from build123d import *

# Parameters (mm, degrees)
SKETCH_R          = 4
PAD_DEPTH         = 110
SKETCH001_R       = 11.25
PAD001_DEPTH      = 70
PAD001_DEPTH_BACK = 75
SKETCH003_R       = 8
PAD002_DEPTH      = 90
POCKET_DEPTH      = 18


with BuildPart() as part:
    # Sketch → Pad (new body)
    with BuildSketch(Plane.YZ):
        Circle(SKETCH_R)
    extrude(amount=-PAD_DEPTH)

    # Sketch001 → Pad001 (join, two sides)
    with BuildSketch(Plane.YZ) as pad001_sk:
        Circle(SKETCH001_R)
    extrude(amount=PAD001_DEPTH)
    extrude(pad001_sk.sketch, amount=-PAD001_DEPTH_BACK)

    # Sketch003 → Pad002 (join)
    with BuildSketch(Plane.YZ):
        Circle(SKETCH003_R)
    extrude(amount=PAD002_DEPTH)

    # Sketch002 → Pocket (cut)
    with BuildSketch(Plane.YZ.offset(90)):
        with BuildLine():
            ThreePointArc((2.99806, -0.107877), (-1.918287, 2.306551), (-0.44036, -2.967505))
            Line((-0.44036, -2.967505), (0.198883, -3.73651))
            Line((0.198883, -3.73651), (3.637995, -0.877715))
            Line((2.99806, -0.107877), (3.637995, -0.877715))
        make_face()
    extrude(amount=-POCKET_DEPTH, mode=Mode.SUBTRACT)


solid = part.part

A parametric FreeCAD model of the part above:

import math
import FreeCAD as App
import Part
import Sketcher

V = App.Vector
Q = App.Units.Quantity

doc = App.newDocument("Part")
body = doc.addObject("PartDesign::Body", "Body")

# Sketch on YZ plane
sketch1 = doc.addObject("Sketcher::SketchObject", "Sketch")
body.addObject(sketch1)
sketch1.AttachmentSupport = (doc.YZ_Plane, [""])
sketch1.MapMode = "FlatFace"
sketch1.addGeometry(Part.Circle(V(0, 0, 0), V(0, 0, 1), 4), False)
sketch1.addConstraint(Sketcher.Constraint("Coincident", 0, 3, -1, 1))
sketch1.addConstraint(Sketcher.Constraint("Diameter", 0, Q("8 mm")))
pad1 = doc.addObject("PartDesign::Pad", "Pad")
body.addObject(pad1)
pad1.Profile = sketch1
pad1.Length = 110
pad1.Reversed = True

# Sketch on YZ plane
sketch2 = doc.addObject("Sketcher::SketchObject", "Sketch001")
body.addObject(sketch2)
sketch2.AttachmentSupport = (doc.YZ_Plane, [""])
sketch2.MapMode = "FlatFace"
sketch2.addGeometry(Part.Circle(V(0, 0, 0), V(0, 0, 1), 11), False)
sketch2.addConstraint(Sketcher.Constraint("Coincident", 0, 3, -1, 1))
sketch2.addConstraint(Sketcher.Constraint("Diameter", 0, Q("22.5 mm")))
pad2 = doc.addObject("PartDesign::Pad", "Pad001")
body.addObject(pad2)
pad2.Profile = sketch2
pad2.Type = "TwoLengths"
pad2.Length = 70
pad2.Length2 = 75

# Sketch on YZ plane
sketch3 = doc.addObject("Sketcher::SketchObject", "Sketch002")
body.addObject(sketch3)
sketch3.AttachmentSupport = (doc.YZ_Plane, [""])
sketch3.MapMode = "FlatFace"
sketch3.addGeometry(Part.Circle(V(0, 0, 0), V(0, 0, 1), 8), False)
sketch3.addConstraint(Sketcher.Constraint("Coincident", 0, 3, -1, 1))
sketch3.addConstraint(Sketcher.Constraint("Diameter", 0, Q("16 mm")))
pad3 = doc.addObject("PartDesign::Pad", "Pad002")
body.addObject(pad3)
pad3.Profile = sketch3
pad3.Length = 90

# Sketch on YZ plane
sketch4 = doc.addObject("Sketcher::SketchObject", "Sketch003")
body.addObject(sketch4)
sketch4.AttachmentSupport = (doc.YZ_Plane, [""])
sketch4.MapMode = "FlatFace"
sketch4.AttachmentOffset = App.Placement(V(0, 0, 90), App.Rotation())
sketch4.addGeometry(Part.ArcOfCircle(Part.Circle(V(0, 0, 0), V(0, 0, 1), 3), math.radians(-2), math.radians(262)), False)
sketch4.addGeometry(Part.LineSegment(V(-0.4, -3, 0), V(0.2, -3.7, 0)), False)
sketch4.addGeometry(Part.LineSegment(V(0.2, -3.7, 0), V(3.6, -0.9, 0)), False)
sketch4.addGeometry(Part.LineSegment(V(3.6, -0.9, 0), V(3, -0.1, 0)), False)
sketch4.addConstraint(Sketcher.Constraint("Coincident", 0, 2, 1, 1))
sketch4.addConstraint(Sketcher.Constraint("Coincident", 1, 2, 2, 1))
sketch4.addConstraint(Sketcher.Constraint("Coincident", 2, 2, 3, 1))
sketch4.addConstraint(Sketcher.Constraint("Coincident", 3, 2, 0, 1))
sketch4.addConstraint(Sketcher.Constraint("Coincident", 0, 3, -1, 1))
sketch4.addConstraint(Sketcher.Constraint("Perpendicular", 1, 2))
sketch4.addConstraint(Sketcher.Constraint("Perpendicular", 2, 3))
sketch4.addConstraint(Sketcher.Constraint("Radius", 0, Q("3 mm")))
sketch4.addConstraint(Sketcher.Constraint("Distance", 1, Q("1 mm")))
sketch4.addConstraint(Sketcher.Constraint("Distance", 2, Q("4.472158 mm")))
sketch4.addConstraint(Sketcher.Constraint("DistanceX", 0, 2, -1, 1, Q("0.44036 mm")))
sketch4.addConstraint(Sketcher.Constraint("DistanceY", 1, 2, -1, 1, Q("3.73651 mm")))
pocket1 = doc.addObject("PartDesign::Pocket", "Pocket")
body.addObject(pocket1)
pocket1.Profile = sketch4
pocket1.Length = 18

doc.recompute()
